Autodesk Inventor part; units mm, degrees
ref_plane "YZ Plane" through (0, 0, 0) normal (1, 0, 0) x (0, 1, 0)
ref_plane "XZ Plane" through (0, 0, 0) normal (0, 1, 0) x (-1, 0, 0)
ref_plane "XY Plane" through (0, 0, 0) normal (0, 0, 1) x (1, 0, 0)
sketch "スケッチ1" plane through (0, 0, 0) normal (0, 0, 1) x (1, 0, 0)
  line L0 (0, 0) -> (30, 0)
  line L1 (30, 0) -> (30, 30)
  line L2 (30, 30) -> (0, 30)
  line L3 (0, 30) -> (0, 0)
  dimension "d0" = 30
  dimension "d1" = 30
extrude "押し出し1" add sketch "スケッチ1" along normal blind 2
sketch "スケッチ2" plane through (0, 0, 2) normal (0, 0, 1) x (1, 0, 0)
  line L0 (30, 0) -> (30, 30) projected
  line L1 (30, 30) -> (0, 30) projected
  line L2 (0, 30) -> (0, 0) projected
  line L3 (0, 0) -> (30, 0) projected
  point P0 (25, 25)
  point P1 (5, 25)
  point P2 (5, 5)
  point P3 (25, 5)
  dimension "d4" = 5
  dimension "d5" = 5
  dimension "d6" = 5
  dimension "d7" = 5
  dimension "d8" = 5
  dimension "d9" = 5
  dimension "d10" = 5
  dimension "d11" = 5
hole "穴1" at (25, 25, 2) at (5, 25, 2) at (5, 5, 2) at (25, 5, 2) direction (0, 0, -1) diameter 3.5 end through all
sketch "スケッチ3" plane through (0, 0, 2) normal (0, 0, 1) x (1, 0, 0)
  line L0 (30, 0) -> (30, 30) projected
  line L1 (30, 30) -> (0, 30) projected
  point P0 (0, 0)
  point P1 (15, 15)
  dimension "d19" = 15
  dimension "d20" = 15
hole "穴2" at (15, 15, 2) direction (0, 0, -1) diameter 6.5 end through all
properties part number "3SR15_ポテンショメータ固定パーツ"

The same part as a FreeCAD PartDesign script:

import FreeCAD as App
import Part
import Sketcher
Q = App.Units.Quantity


def add_polygon(sketch, points):
    """Adds a closed chain of lines whose ends are joined by coincident constraints."""
    first, n = sketch.GeometryCount, len(points)
    for a, b in zip(points, points[1:] + points[:1]):
        sketch.addGeometry(Part.LineSegment(App.Vector(*a, 0), App.Vector(*b, 0)), False)
    for i in range(n):
        sketch.addConstraint(Sketcher.Constraint("Coincident", first + i, 2, first + (i + 1) % n, 1))

doc = App.newDocument("Part")
body = doc.addObject("PartDesign::Body", "Body")

# Sketch on XY plane
sketch1 = body.newObject("Sketcher::SketchObject", "Sketch")
sketch1.AttachmentSupport = (doc.getObject("XY_Plane"), [""])
sketch1.MapMode = "FlatFace"
add_polygon(sketch1, [(0, 30), (0, 0), (30, 0), (30, 30)])  # lines 0-3
sketch1.addConstraint(Sketcher.Constraint("Vertical", 0))
sketch1.addConstraint(Sketcher.Constraint("Horizontal", 1))
sketch1.addConstraint(Sketcher.Constraint("Vertical", 2))
sketch1.addConstraint(Sketcher.Constraint("Horizontal", 3))
sketch1.addConstraint(Sketcher.Constraint("Coincident", 0, 2, -1, 1))
sketch1.addConstraint(Sketcher.Constraint("Equal", 3, 0))
sketch1.addConstraint(Sketcher.Constraint("DistanceX", 1, 1, 1, 2, Q("30 mm")))
pad1 = body.newObject("PartDesign::Pad", "Pad")
pad1.Profile = sketch1
pad1.Length = 2

# Sketch on XY plane
sketch2 = body.newObject("Sketcher::SketchObject", "Sketch001")
sketch2.AttachmentSupport = (doc.getObject("XY_Plane"), [""])
sketch2.MapMode = "FlatFace"
sketch2.AttachmentOffset = App.Placement(App.Vector(0, 0, 2), App.Rotation())
sketch2.addGeometry(Part.Circle(App.Vector(25, 25, 0), App.Vector(0, 0, 1), 1.8), False)
sketch2.addGeometry(Part.Circle(App.Vector(5, 25, 0), App.Vector(0, 0, 1), 1.8), False)
sketch2.addGeometry(Part.Circle(App.Vector(5, 5, 0), App.Vector(0, 0, 1), 1.8), False)
sketch2.addGeometry(Part.Circle(App.Vector(25, 5, 0), App.Vector(0, 0, 1), 1.8), False)
sketch2.addConstraint(Sketcher.Constraint("Equal", 0, 1))
sketch2.addConstraint(Sketcher.Constraint("Equal", 1, 2))
sketch2.addConstraint(Sketcher.Constraint("Equal", 2, 3))
sketch2.addConstraint(Sketcher.Constraint("Horizontal", 0, 3, 1, 3))
sketch2.addConstraint(Sketcher.Constraint("Horizontal", 2, 3, 3, 3))
sketch2.addConstraint(Sketcher.Constraint("Vertical", 1, 3, 2, 3))
sketch2.addConstraint(Sketcher.Constraint("Vertical", 0, 3, 3, 3))
sketch2.addConstraint(Sketcher.Constraint("Diameter", 0, Q("3.5 mm")))
sketch2.addConstraint(Sketcher.Constraint("DistanceX", -1, 1, 0, 3, Q("25 mm")))
sketch2.addConstraint(Sketcher.Constraint("DistanceY", -1, 1, 0, 3, Q("25 mm")))
sketch2.addConstraint(Sketcher.Constraint("DistanceX", -1, 1, 1, 3, Q("5 mm")))
sketch2.addConstraint(Sketcher.Constraint("DistanceY", -1, 1, 2, 3, Q("5 mm")))
doc.recompute()
hole = body.newObject("PartDesign::Hole", "Hole")
hole.Profile = sketch2
hole.ThreadType = "None"
hole.Diameter = 3.5
hole.DepthType = "ThroughAll"

# Sketch on XY plane
sketch3 = body.newObject("Sketcher::SketchObject", "Sketch002")
sketch3.AttachmentSupport = (doc.getObject("XY_Plane"), [""])
sketch3.MapMode = "FlatFace"
sketch3.AttachmentOffset = App.Placement(App.Vector(0, 0, 2), App.Rotation())
sketch3.addGeometry(Part.Circle(App.Vector(15, 15, 0), App.Vector(0, 0, 1), 3.2), False)
sketch3.addConstraint(Sketcher.Constraint("Diameter", 0, Q("6.5 mm")))
sketch3.addConstraint(Sketcher.Constraint("DistanceX", -1, 1, 0, 3, Q("15 mm")))
sketch3.addConstraint(Sketcher.Constraint("DistanceY", -1, 1, 0, 3, Q("15 mm")))
doc.recompute()
hole2 = body.newObject("PartDesign::Hole", "Hole001")
hole2.Profile = sketch3
hole2.ThreadType = "None"
hole2.Diameter = 6.5
hole2.DepthType = "ThroughAll"

doc.recompute()
